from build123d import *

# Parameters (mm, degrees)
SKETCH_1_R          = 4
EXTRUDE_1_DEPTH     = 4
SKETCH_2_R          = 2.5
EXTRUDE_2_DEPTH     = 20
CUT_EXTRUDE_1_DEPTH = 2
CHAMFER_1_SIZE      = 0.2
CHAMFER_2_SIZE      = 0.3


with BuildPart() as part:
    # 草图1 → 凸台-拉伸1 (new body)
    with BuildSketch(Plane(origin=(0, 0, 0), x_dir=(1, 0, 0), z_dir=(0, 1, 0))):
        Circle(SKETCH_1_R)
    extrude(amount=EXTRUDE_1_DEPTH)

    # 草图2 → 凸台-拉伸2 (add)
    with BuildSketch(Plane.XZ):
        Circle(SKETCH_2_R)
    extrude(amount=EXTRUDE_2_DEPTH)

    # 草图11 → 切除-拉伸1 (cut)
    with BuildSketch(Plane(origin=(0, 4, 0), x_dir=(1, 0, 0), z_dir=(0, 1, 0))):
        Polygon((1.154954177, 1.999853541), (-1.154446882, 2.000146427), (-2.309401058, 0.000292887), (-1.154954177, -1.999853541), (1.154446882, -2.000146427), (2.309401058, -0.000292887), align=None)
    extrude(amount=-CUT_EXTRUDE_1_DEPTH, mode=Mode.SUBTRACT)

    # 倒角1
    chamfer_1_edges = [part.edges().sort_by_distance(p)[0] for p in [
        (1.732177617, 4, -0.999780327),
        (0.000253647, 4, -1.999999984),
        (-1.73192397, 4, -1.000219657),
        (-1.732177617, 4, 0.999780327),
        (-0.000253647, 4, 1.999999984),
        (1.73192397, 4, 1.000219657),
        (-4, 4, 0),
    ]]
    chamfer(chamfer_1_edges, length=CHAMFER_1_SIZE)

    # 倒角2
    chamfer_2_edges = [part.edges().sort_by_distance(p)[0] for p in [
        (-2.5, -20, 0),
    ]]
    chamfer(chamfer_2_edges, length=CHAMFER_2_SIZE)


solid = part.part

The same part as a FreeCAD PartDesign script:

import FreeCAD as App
import Part
import Sketcher
from FreeCAD import Vector
Q = App.Units.Quantity


def edges_at(feature, points):
    """Names of the edges that pass closest to the given points."""
    edges = feature.Shape.Edges
    near = lambda p: min(range(len(edges)), key=lambda i: edges[i].distToShape(Part.Vertex(*p))[0])
    return sorted({f"Edge{near(p) + 1}" for p in points})


def add_polygon(sketch, points):
    """Adds a closed chain of lines whose ends are joined by coincident constraints."""
    first, n = sketch.GeometryCount, len(points)
    for a, b in zip(points, points[1:] + points[:1]):
        sketch.addGeometry(Part.LineSegment(App.Vector(*a, 0), App.Vector(*b, 0)), False)
    for i in range(n):
        sketch.addConstraint(Sketcher.Constraint("Coincident", first + i, 2, first + (i + 1) % n, 1))

doc = App.newDocument("Part")
body = doc.addObject("PartDesign::Body", "Body")

sketch1 = doc.addObject("Sketcher::SketchObject", "Sketch")
body.addObject(sketch1)
sketch1.AttachmentSupport = (doc.XZ_Plane, [""])
sketch1.MapMode = "FlatFace"
sketch1.addGeometry(Part.Circle(Vector(0, 0, 0), Vector(0, 0, 1), 4), False)
sketch1.addConstraint([
    Sketcher.Constraint("Coincident", 0, 3, -1, 1),
    Sketcher.Constraint("Diameter", 0, Q("8 mm")),
])
pad1 = doc.addObject("PartDesign::Pad", "Pad")
body.addObject(pad1)
pad1.Profile = sketch1
pad1.Length = 4
pad1.Reversed = True

sketch2 = doc.addObject("Sketcher::SketchObject", "Sketch001")
body.addObject(sketch2)
sketch2.AttachmentSupport = (doc.XZ_Plane, [""])
sketch2.MapMode = "FlatFace"
sketch2.addGeometry(Part.Circle(Vector(0, 0, 0), Vector(0, 0, 1), 2.5), False)
sketch2.addConstraint([
    Sketcher.Constraint("Coincident", 0, 3, -1, 1),
    Sketcher.Constraint("Diameter", 0, Q("5 mm")),
])
pad2 = doc.addObject("PartDesign::Pad", "Pad001")
body.addObject(pad2)
pad2.Profile = sketch2
pad2.Length = 20

sketch3 = doc.addObject("Sketcher::SketchObject", "Sketch002")
body.addObject(sketch3)
sketch3.AttachmentSupport = (doc.XZ_Plane, [""])
sketch3.MapMode = "FlatFace"
sketch3.AttachmentOffset = App.Placement(Vector(0, 0, -4), App.Rotation())
add_polygon(sketch3, [(1.2, -2), (-1.2, -2), (-2.3, 0), (-1.2, 2), (1.2, 2), (2.3, 0)])
sketch3.addConstraint([
    Sketcher.Constraint("Symmetric", 0, 2, 3, 2, -1, 1),
    Sketcher.Constraint("Symmetric", 1, 2, 4, 2, -1, 1),
    Sketcher.Constraint("Symmetric", 2, 2, 5, 2, -1, 1),
    Sketcher.Constraint("Equal", 0, 1),
    Sketcher.Constraint("Equal", 1, 2),
    Sketcher.Constraint("DistanceY", 0, 2, 2, 2, Q("4 mm")),
    Sketcher.Constraint("Distance", 0, Q("2.309401 mm")),
    Sketcher.Constraint("DistanceY", 1, 2, 3, 2, Q("2.000439 mm")),
    Sketcher.Constraint("DistanceX", 2, 2, 5, 2, Q("2.309908 mm")),
])
pocket1 = doc.addObject("PartDesign::Pocket", "Pocket")
body.addObject(pocket1)
pocket1.Profile = sketch3
pocket1.Length = 2
pocket1.Reversed = True
doc.recompute()

chamfer = doc.addObject("PartDesign::Chamfer", "Chamfer")
body.addObject(chamfer)
chamfer.Base = (pocket1, edges_at(pocket1, [
    (1.732, 4, -1),
    (0, 4, -2),
    (-1.732, 4, -1),
    (-1.732, 4, 1),
    (0, 4, 2),
    (1.732, 4, 1),
    (-4, 4, 0),
]))
chamfer.Size = 0.2
doc.recompute()

chamfer2 = doc.addObject("PartDesign::Chamfer", "Chamfer001")
body.addObject(chamfer2)
chamfer2.Base = (chamfer, edges_at(chamfer, [(-2.5, -20, 0)]))
chamfer2.Size = 0.3

doc.recompute()
